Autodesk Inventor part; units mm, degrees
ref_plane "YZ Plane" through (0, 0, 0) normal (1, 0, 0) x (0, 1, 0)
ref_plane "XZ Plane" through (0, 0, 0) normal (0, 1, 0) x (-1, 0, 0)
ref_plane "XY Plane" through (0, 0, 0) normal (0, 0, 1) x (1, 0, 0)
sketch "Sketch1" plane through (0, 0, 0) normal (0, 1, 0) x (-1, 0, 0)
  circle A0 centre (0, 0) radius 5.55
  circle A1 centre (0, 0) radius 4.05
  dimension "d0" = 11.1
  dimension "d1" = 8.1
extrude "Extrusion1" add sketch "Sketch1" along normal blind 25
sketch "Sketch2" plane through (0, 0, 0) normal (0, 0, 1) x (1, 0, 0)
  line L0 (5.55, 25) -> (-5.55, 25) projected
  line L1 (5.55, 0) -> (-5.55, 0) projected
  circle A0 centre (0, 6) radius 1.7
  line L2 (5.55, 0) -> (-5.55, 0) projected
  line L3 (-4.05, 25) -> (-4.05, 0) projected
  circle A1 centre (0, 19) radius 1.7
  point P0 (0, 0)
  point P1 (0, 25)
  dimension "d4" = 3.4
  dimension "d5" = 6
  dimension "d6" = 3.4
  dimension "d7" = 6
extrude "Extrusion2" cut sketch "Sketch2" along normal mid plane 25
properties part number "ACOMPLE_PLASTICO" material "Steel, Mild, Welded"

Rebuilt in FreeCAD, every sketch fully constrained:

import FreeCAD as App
import Part
import Sketcher
from FreeCAD import Vector
Q = App.Units.Quantity

doc = App.newDocument("Part")
body = doc.addObject("PartDesign::Body", "Body")

# Sketch on XZ plane
sketch1 = doc.addObject("Sketcher::SketchObject", "Sketch")
body.addObject(sketch1)
sketch1.AttachmentSupport = (doc.XZ_Plane, [""])
sketch1.MapMode = "FlatFace"
sketch1.addGeometry([
    Part.Circle(Vector(0, 0, 0), Vector(0, 0, 1), 5.5),
    Part.Circle(Vector(0, 0, 0), Vector(0, 0, 1), 4),
], False)
sketch1.addConstraint([
    Sketcher.Constraint("Coincident", 0, 3, -1, 1),
    Sketcher.Constraint("Coincident", 1, 3, -1, 1),
    Sketcher.Constraint("Diameter", 0, Q("11.1 mm")),
    Sketcher.Constraint("Diameter", 1, Q("8.1 mm")),
])
pad1 = doc.addObject("PartDesign::Pad", "Pad")
body.addObject(pad1)
pad1.Profile = sketch1
pad1.Length = 25
pad1.Reversed = True

# Sketch on XY plane
sketch2 = doc.addObject("Sketcher::SketchObject", "Sketch001")
body.addObject(sketch2)
sketch2.AttachmentSupport = (doc.XY_Plane, [""])
sketch2.MapMode = "FlatFace"
sketch2.addGeometry([
    Part.Circle(Vector(0, 6, 0), Vector(0, 0, 1), 1.7),
    Part.Circle(Vector(0, 19, 0), Vector(0, 0, 1), 1.7),
], False)
sketch2.addConstraint([
    Sketcher.Constraint("Equal", 0, 1),
    Sketcher.Constraint("PointOnObject", 0, 3, -2),
    Sketcher.Constraint("PointOnObject", 1, 3, -2),
    Sketcher.Constraint("Diameter", 0, Q("3.4 mm")),
    Sketcher.Constraint("DistanceY", -1, 1, 0, 3, Q("6 mm")),
    Sketcher.Constraint("DistanceY", -1, 1, 1, 3, Q("19 mm")),
])
pocket1 = doc.addObject("PartDesign::Pocket", "Pocket")
body.addObject(pocket1)
pocket1.Profile = sketch2
pocket1.Length = 25
pocket1.Midplane = True

doc.recompute()
